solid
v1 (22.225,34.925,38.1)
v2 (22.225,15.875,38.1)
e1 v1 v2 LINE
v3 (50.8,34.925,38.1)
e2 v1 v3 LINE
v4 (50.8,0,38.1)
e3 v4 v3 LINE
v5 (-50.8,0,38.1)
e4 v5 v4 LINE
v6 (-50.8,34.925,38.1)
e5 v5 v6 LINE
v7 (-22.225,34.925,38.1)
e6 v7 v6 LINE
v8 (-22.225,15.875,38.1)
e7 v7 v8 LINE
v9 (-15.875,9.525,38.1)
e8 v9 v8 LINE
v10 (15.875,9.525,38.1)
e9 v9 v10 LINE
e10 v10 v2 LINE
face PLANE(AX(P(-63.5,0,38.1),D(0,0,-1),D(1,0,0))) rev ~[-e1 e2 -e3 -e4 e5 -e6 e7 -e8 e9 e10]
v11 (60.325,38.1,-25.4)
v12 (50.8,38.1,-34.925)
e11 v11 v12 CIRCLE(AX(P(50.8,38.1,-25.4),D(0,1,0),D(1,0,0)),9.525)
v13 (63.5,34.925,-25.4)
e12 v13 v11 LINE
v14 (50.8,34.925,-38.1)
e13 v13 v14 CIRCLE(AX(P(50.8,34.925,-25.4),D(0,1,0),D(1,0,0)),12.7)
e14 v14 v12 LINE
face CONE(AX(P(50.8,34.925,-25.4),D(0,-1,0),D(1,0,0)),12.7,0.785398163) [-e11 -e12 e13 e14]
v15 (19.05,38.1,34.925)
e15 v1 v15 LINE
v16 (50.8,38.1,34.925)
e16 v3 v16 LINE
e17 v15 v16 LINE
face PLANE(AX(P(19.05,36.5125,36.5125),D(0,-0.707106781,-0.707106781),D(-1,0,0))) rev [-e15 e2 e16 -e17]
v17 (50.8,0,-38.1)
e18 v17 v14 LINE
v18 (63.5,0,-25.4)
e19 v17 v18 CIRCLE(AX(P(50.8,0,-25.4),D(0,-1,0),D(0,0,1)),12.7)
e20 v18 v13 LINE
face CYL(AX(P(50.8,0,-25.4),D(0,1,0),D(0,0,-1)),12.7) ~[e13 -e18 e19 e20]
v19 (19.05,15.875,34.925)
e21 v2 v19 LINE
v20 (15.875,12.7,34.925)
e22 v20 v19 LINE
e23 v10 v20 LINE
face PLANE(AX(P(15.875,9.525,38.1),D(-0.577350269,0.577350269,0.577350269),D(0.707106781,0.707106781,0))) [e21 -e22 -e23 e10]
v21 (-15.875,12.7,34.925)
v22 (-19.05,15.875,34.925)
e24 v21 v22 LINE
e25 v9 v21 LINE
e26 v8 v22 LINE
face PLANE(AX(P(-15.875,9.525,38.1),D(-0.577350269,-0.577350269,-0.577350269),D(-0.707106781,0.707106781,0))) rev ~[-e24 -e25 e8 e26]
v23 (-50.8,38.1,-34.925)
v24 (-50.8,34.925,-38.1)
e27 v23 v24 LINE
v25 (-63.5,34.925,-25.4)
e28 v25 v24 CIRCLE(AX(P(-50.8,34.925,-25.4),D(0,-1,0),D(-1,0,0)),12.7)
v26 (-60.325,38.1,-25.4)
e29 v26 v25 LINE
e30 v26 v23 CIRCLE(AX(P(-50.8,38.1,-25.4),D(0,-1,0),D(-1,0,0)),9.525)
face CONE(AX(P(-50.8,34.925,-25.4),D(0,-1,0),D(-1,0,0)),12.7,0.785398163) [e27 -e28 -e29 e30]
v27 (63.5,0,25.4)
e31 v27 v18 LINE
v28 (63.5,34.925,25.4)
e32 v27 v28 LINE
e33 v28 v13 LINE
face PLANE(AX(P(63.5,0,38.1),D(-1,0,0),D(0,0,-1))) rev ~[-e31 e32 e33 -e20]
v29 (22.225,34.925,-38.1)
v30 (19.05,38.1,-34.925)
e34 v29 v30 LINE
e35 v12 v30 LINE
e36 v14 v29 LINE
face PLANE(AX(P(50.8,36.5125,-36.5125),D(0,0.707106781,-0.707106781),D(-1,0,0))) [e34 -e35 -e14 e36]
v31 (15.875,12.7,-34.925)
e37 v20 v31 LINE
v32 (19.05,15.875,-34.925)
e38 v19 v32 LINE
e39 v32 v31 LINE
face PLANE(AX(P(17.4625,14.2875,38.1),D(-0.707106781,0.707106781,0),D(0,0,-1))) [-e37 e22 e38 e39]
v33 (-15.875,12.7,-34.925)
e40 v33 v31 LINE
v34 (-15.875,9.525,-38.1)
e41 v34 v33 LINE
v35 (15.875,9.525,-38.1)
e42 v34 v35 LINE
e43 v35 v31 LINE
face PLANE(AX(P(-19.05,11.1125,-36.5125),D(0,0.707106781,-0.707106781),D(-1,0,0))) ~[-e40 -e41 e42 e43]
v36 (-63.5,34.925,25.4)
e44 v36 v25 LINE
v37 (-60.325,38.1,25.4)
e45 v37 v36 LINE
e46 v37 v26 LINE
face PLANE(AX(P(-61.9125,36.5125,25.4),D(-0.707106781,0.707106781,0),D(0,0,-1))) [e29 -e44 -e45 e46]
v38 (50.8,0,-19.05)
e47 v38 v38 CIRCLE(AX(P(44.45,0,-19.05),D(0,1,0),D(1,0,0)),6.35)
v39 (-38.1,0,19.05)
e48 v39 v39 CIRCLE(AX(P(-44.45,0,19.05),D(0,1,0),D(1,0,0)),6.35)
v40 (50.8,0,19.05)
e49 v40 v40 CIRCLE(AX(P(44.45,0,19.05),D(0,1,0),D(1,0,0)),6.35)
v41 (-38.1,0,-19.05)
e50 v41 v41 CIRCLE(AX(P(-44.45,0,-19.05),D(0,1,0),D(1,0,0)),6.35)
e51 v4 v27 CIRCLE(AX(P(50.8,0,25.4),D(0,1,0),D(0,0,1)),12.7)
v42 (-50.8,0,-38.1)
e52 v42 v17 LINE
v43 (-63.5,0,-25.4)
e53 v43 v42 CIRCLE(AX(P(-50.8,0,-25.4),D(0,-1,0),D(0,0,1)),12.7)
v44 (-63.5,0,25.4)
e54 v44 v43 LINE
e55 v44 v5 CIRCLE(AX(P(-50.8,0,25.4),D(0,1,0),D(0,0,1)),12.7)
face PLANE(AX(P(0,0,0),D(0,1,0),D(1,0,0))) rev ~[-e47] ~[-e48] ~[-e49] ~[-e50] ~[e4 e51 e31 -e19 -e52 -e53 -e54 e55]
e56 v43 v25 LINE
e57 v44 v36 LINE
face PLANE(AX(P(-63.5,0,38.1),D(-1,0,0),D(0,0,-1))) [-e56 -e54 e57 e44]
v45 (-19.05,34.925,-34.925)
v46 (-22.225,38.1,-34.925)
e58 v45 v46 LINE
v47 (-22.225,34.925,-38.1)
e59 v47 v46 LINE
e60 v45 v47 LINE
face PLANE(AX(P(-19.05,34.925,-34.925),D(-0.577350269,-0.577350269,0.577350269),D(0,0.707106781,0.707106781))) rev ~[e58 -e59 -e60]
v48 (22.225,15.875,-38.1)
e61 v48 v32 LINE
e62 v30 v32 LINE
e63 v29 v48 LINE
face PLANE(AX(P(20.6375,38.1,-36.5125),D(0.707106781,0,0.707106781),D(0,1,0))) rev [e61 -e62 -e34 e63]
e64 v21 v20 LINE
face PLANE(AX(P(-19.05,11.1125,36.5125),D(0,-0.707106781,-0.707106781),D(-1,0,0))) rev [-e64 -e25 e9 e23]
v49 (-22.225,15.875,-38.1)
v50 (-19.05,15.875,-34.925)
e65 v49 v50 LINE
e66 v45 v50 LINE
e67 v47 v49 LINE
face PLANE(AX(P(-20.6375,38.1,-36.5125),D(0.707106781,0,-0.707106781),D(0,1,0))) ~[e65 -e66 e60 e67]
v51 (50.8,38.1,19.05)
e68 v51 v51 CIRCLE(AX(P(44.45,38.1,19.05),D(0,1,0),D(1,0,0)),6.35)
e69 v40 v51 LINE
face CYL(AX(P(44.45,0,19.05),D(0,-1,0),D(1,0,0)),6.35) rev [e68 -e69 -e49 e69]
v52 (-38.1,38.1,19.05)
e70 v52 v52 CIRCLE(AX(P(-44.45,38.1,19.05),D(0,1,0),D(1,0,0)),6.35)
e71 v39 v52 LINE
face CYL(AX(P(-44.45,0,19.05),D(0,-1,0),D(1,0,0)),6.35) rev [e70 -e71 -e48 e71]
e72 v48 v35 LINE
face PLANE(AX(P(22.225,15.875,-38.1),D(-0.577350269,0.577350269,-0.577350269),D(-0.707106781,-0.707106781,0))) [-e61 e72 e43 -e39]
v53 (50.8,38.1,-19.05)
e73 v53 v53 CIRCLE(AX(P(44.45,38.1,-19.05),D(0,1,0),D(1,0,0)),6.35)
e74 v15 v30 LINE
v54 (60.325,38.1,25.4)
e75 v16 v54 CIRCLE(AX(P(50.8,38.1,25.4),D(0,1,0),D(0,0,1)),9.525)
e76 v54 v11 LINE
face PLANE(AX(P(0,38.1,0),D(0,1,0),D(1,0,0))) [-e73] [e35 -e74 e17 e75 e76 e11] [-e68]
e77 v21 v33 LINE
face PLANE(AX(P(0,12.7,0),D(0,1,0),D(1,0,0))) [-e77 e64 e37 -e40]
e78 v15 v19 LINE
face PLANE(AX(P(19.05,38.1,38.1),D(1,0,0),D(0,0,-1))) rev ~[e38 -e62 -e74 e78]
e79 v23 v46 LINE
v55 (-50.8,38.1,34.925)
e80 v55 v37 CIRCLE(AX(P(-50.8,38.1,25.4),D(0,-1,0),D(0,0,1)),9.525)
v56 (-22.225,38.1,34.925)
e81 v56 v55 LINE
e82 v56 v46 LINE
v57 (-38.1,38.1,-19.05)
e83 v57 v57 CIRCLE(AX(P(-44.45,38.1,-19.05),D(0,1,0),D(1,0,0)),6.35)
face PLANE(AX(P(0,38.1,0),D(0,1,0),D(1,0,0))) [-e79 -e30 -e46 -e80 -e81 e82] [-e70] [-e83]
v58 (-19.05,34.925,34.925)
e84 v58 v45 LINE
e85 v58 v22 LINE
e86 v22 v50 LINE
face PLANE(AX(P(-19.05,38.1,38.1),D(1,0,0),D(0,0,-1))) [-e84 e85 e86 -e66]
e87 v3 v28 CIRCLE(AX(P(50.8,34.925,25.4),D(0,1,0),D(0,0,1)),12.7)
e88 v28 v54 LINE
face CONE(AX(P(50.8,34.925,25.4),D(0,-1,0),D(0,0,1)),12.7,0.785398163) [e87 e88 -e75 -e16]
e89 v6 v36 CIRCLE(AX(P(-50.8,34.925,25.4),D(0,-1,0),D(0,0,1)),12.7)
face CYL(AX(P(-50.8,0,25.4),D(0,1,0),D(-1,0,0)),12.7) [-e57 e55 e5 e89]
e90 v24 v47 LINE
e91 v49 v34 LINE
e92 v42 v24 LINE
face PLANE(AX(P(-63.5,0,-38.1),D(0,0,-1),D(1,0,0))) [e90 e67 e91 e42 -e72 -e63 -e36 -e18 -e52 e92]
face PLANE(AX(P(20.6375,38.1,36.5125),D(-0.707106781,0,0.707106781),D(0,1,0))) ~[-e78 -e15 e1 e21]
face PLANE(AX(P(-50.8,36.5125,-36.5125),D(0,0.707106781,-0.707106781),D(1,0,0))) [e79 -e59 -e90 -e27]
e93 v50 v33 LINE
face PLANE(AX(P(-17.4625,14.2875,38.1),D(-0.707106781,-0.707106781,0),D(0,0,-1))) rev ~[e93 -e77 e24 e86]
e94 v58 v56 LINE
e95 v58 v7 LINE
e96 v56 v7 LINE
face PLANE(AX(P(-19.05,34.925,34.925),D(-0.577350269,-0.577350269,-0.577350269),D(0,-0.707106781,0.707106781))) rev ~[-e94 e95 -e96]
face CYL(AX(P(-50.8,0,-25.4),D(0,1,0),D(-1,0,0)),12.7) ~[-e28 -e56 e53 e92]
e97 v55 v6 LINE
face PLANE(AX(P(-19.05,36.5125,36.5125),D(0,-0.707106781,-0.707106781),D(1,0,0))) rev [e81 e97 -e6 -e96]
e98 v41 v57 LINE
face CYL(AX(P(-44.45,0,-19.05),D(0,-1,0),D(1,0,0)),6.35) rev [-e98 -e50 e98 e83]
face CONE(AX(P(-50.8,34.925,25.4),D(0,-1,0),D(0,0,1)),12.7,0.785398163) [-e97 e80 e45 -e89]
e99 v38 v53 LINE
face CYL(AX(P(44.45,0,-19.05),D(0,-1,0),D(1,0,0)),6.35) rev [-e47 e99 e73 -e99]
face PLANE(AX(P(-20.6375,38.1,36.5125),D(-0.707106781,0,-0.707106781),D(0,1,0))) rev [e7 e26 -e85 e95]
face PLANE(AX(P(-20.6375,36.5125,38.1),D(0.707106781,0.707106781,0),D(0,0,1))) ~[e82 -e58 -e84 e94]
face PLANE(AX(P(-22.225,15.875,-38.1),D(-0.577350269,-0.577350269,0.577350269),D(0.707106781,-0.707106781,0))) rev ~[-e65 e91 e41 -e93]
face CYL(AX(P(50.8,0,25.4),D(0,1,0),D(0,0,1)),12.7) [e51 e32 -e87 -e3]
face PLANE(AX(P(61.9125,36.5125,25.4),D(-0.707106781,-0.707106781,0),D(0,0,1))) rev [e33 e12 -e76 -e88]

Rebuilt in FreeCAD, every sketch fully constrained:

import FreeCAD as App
import Part
import Sketcher
Q = App.Units.Quantity


def edges_at(feature, points):
    """Names of the edges that pass closest to the given points."""
    edges = feature.Shape.Edges
    near = lambda p: min(range(len(edges)), key=lambda i: edges[i].distToShape(Part.Vertex(*p))[0])
    return sorted({f"Edge{near(p) + 1}" for p in points})


def add_polygon(sketch, points):
    """Adds a closed chain of lines whose ends are joined by coincident constraints."""
    first, n = sketch.GeometryCount, len(points)
    for a, b in zip(points, points[1:] + points[:1]):
        sketch.addGeometry(Part.LineSegment(App.Vector(*a, 0), App.Vector(*b, 0)), False)
    for i in range(n):
        sketch.addConstraint(Sketcher.Constraint("Coincident", first + i, 2, first + (i + 1) % n, 1))

doc = App.newDocument("Part")
body = doc.addObject("PartDesign::Body", "Body")

sketch1 = doc.addObject("Sketcher::SketchObject", "Sketch")
body.addObject(sketch1)
sketch1.AttachmentSupport = (doc.XZ_Plane, [""])
sketch1.MapMode = "FlatFace"
add_polygon(sketch1, [(-63.5, -38.1), (-63.5, 38.1), (63.5, 38.1), (63.5, -38.1)])
sketch1.addGeometry(Part.Circle(App.Vector(-44.45, 19.05, 0), App.Vector(0, 0, 1), 6.35), False)
sketch1.addGeometry(Part.Circle(App.Vector(44.45, 19.05, 0), App.Vector(0, 0, 1), 6.35), False)
sketch1.addGeometry(Part.Circle(App.Vector(-44.45, -19.05, 0), App.Vector(0, 0, 1), 6.35), False)
sketch1.addGeometry(Part.Circle(App.Vector(44.45, -19.05, 0), App.Vector(0, 0, 1), 6.35), False)
sketch1.addConstraint(Sketcher.Constraint("Vertical", 0))
sketch1.addConstraint(Sketcher.Constraint("Horizontal", 1))
sketch1.addConstraint(Sketcher.Constraint("Vertical", 2))
sketch1.addConstraint(Sketcher.Constraint("Horizontal", 3))
sketch1.addConstraint(Sketcher.Constraint("Equal", 4, 5))
sketch1.addConstraint(Sketcher.Constraint("Equal", 5, 6))
sketch1.addConstraint(Sketcher.Constraint("Equal", 6, 7))
sketch1.addConstraint(Sketcher.Constraint("Symmetric", 5, 3, 6, 3, -1, 1))
sketch1.addConstraint(Sketcher.Constraint("Symmetric", 4, 3, 7, 3, -1, 1))
sketch1.addConstraint(Sketcher.Constraint("Symmetric", 0, 2, 2, 2, -1, 1))
sketch1.addConstraint(Sketcher.Constraint("Symmetric", 4, 3, 5, 3, -2))
sketch1.addConstraint(Sketcher.Constraint("Diameter", 4, Q("0.5 in")))
sketch1.addConstraint(Sketcher.Constraint("DistanceX", 1, 1, 1, 2, Q("5 in")))
sketch1.addConstraint(Sketcher.Constraint("DistanceY", 0, 1, 0, 2, Q("3 in")))
sketch1.addConstraint(Sketcher.Constraint("DistanceX", 4, 3, 5, 3, Q("3.5 in")))
sketch1.addConstraint(Sketcher.Constraint("DistanceY", 6, 3, 4, 3, Q("1.5 in")))
pad1 = doc.addObject("PartDesign::Pad", "Pad")
body.addObject(pad1)
pad1.Profile = sketch1
pad1.Length = Q("1.5 in")
pad1.Reversed = True

sketch2 = doc.addObject("Sketcher::SketchObject", "Sketch001")
body.addObject(sketch2)
sketch2.AttachmentSupport = (doc.XZ_Plane, [""])
sketch2.MapMode = "FlatFace"
sketch2.AttachmentOffset = App.Placement(App.Vector(0, 0, -1.5 * 25.4), App.Rotation())
add_polygon(sketch2, [(-19.05, -38.1), (-19.05, 38.1), (19.05, 38.1), (19.05, -38.1)])
sketch2.addConstraint(Sketcher.Constraint("Vertical", 0))
sketch2.addConstraint(Sketcher.Constraint("Horizontal", 1))
sketch2.addConstraint(Sketcher.Constraint("Vertical", 2))
sketch2.addConstraint(Sketcher.Constraint("Horizontal", 3))
sketch2.addConstraint(Sketcher.Constraint("Symmetric", 0, 2, 2, 2, -1, 1))
sketch2.addConstraint(Sketcher.Constraint("DistanceY", 0, 1, 0, 2, Q("3 in")))
sketch2.addConstraint(Sketcher.Constraint("DistanceX", 1, 1, 1, 2, Q("1.5 in")))
pocket1 = doc.addObject("PartDesign::Pocket", "Pocket")
body.addObject(pocket1)
pocket1.Profile = sketch2
pocket1.Length = Q("1 in")
pocket1.Reversed = True
doc.recompute()

fillet = doc.addObject("PartDesign::Fillet", "Fillet")
body.addObject(fillet)
fillet.Base = (pocket1, edges_at(pocket1, [
    (63.5, 19.05, 38.1),
    (-63.5, 19.05, 38.1),
    (-63.5, 19.05, -38.1),
    (63.5, 19.05, -38.1),
]))
fillet.Radius = Q("0.5 in")
doc.recompute()

chamfer = doc.addObject("PartDesign::Chamfer", "Chamfer")
body.addObject(chamfer)
chamfer.Base = (fillet, edges_at(fillet, [
    (34.925, 38.1, 38.1),
    (-34.925, 38.1, -38.1),
    (-19.05, 25.4, -38.1),
    (19.05, 12.7, 0),
    (19.05, 25.4, -38.1),
    (0, 12.7, 38.1),
    (19.05, 25.4, 38.1),
    (-19.05, 38.1, 0),
    (-19.05, 25.4, 38.1),
    (0, 12.7, -38.1),
    (-19.05, 12.7, 0),
    (-63.5, 38.1, 0),
    (34.925, 38.1, -38.1),
    (-34.925, 38.1, 38.1),
    (-59.78, 38.1, 34.38),
    (-59.78, 38.1, -34.38),
    (63.5, 38.1, 0),
    (59.78, 38.1, 34.38),
    (59.78, 38.1, -34.38),
]))
chamfer.Size = Q("0.125 in")

doc.recompute()
